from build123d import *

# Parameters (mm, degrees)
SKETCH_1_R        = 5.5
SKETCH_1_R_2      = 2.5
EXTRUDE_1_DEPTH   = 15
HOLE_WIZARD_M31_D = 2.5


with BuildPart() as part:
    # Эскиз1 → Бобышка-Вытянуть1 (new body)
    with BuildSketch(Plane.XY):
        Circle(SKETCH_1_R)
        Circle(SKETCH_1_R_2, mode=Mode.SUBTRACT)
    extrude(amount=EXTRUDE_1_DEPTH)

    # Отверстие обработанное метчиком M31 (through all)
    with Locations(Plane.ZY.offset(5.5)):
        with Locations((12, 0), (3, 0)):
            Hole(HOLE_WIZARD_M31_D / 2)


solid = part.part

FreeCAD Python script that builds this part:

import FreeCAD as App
import Part
import Sketcher

V = App.Vector

doc = App.newDocument("Part")
params = doc.addObject("Spreadsheet::Sheet", "Params")
for row, (alias, value) in enumerate([
    ("sketch1_diameter", "11 mm"),
    ("sketch1_diameter2", "5 mm"),
    ("pad1_length", "15 mm"),
    ("sketch2_diameter", "2.5 mm"),
    ("hole_diameter", "2.5 mm"),
], start=1):
    params.set(f"A{row}", alias)
    params.set(f"B{row}", "=" + value)
    params.setAlias(f"B{row}", alias)

body = doc.addObject("PartDesign::Body", "Body")

# Sketch on XY plane
sketch1 = body.newObject("Sketcher::SketchObject", "Sketch")
sketch1.AttachmentSupport = (doc.getObject("XY_Plane"), [""])
sketch1.MapMode = "FlatFace"
sketch1.addGeometry([
    Part.Circle(V(0, 0, 0), V(0, 0, 1), 5.5),
    Part.Circle(V(0, 0, 0), V(0, 0, 1), 2.5),
], False)
sketch1.addConstraint([
    Sketcher.Constraint("Coincident", 0, 3, -1, 1),
    Sketcher.Constraint("Coincident", 1, 3, -1, 1),
    Sketcher.Constraint("Diameter", 0, 11.0),
    Sketcher.Constraint("Diameter", 1, 5.0),
])
sketch1.setExpression("Constraints[2]", "Params.sketch1_diameter")
sketch1.setExpression("Constraints[3]", "Params.sketch1_diameter2")
pad1 = body.newObject("PartDesign::Pad", "Pad")
pad1.Profile = sketch1
pad1.setExpression("Length", "Params.pad1_length")

# Sketch on YZ plane
sketch2 = body.newObject("Sketcher::SketchObject", "Sketch001")
sketch2.AttachmentSupport = (doc.getObject("YZ_Plane"), [""])
sketch2.MapMode = "FlatFace"
sketch2.AttachmentOffset = App.Placement(V(0, 0, -5.5), App.Rotation())
sketch2.addGeometry([
    Part.Circle(V(0, 12, 0), V(0, 0, 1), 1.2),
    Part.Circle(V(0, 3, 0), V(0, 0, 1), 1.2),
], False)
sketch2.addConstraint([
    Sketcher.Constraint("Equal", 0, 1),
    Sketcher.Constraint("PointOnObject", 0, 3, -2),
    Sketcher.Constraint("PointOnObject", 1, 3, -2),
    Sketcher.Constraint("Diameter", 0, 2.5),
    Sketcher.Constraint("DistanceY", -1, 1, 0, 3, 12.0),
    Sketcher.Constraint("DistanceY", -1, 1, 1, 3, 3.0),
])
sketch2.setExpression("Constraints[3]", "Params.sketch2_diameter")
doc.recompute()
hole = body.newObject("PartDesign::Hole", "Hole")
hole.Profile = sketch2
hole.ThreadType = "None"
hole.setExpression("Diameter", "Params.hole_diameter")
hole.DepthType = "ThroughAll"
hole.Reversed = True

doc.recompute()
